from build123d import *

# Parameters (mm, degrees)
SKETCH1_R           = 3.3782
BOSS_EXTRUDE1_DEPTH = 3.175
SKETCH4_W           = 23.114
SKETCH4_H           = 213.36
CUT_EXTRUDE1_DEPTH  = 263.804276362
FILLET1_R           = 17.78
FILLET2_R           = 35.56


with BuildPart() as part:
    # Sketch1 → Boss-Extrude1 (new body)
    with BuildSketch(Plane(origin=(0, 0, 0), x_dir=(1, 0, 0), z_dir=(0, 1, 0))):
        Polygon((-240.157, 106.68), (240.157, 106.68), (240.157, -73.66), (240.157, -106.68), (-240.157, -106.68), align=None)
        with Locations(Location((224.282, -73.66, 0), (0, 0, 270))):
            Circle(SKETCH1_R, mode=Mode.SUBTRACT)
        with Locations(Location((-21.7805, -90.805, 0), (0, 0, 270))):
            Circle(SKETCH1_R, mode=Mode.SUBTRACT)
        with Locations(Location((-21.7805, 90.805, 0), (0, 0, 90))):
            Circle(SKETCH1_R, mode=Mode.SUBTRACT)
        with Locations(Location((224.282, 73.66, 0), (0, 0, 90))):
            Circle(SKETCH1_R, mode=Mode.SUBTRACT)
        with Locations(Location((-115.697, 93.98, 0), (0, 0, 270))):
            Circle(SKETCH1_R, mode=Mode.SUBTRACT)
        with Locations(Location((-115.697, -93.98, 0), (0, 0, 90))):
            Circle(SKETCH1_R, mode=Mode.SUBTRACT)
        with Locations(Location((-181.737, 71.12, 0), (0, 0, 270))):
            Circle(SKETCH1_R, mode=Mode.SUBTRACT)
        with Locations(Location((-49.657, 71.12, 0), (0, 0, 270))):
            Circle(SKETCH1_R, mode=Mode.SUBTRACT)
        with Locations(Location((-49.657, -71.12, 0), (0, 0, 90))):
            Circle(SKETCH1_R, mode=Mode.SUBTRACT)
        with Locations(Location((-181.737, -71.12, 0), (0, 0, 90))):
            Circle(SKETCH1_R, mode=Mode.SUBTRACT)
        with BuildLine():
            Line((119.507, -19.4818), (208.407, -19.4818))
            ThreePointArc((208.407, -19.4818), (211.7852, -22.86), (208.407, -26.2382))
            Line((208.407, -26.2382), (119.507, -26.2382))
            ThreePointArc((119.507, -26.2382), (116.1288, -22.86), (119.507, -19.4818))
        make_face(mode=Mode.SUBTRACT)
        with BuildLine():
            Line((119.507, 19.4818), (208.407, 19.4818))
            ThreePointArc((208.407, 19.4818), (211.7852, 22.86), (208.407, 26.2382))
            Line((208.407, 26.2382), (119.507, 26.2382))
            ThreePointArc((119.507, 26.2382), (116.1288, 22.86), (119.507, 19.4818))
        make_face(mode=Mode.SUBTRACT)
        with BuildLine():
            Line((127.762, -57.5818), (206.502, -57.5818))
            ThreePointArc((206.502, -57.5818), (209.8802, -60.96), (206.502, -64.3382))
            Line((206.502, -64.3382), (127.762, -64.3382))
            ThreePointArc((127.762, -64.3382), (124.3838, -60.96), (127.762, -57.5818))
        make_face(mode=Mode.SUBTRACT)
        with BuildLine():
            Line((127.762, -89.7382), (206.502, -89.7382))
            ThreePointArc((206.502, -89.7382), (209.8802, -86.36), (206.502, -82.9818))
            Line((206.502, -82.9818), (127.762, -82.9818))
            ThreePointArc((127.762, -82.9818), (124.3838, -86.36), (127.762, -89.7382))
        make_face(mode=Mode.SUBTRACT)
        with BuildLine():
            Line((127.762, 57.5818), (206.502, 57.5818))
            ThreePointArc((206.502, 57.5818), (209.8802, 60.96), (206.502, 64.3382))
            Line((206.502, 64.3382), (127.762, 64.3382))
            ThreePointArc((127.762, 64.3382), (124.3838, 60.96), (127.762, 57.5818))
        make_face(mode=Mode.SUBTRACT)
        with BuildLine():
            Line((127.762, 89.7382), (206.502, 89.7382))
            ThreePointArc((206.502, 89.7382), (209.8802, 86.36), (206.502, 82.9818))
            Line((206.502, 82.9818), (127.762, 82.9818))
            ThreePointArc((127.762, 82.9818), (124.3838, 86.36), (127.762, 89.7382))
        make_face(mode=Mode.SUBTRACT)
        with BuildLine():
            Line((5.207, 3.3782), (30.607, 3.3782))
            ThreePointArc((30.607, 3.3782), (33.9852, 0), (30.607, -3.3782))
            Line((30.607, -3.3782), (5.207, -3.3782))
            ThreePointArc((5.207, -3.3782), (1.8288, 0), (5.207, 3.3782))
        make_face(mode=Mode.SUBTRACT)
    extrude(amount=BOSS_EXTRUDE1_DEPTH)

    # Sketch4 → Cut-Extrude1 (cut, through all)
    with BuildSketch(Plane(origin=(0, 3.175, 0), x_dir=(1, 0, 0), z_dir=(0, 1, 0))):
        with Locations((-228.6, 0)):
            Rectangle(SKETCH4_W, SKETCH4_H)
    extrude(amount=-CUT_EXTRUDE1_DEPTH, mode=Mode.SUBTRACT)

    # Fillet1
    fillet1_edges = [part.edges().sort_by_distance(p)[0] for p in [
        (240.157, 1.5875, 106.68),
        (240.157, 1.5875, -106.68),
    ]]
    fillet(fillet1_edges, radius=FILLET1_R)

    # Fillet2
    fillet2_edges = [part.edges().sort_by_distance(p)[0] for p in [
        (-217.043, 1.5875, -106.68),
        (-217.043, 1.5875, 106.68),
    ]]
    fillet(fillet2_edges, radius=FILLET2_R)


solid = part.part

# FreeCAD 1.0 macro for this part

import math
import FreeCAD as App
import Part
import Sketcher
from FreeCAD import Vector
Q = App.Units.Quantity


def edges_at(feature, points):
    """Names of the edges that pass closest to the given points."""
    edges = feature.Shape.Edges
    near = lambda p: min(range(len(edges)), key=lambda i: edges[i].distToShape(Part.Vertex(*p))[0])
    return sorted({f"Edge{near(p) + 1}" for p in points})


def add_polygon(sketch, points):
    """Adds a closed chain of lines whose ends are joined by coincident constraints."""
    first, n = sketch.GeometryCount, len(points)
    for a, b in zip(points, points[1:] + points[:1]):
        sketch.addGeometry(Part.LineSegment(App.Vector(*a, 0), App.Vector(*b, 0)), False)
    for i in range(n):
        sketch.addConstraint(Sketcher.Constraint("Coincident", first + i, 2, first + (i + 1) % n, 1))

doc = App.newDocument("Part")
body = doc.addObject("PartDesign::Body", "Body")

sketch1 = body.newObject("Sketcher::SketchObject", "Sketch")
sketch1.AttachmentSupport = (doc.getObject("XZ_Plane"), [""])
sketch1.MapMode = "FlatFace"
add_polygon(sketch1, [(240.2, -106.7), (-240.2, -106.7), (-240.2, 106.7), (240.2, 106.7)])
sketch1.addGeometry(Part.Circle(Vector(224.3, 73.7, 0), Vector(0, 0, 1), 3.4), False)
sketch1.addGeometry(Part.ArcOfCircle(Part.Circle(Vector(127.8, 86.4, 0), Vector(0, 0, 1), 3.4), math.radians(90), math.radians(270)), False)
sketch1.addGeometry(Part.LineSegment(Vector(127.8, 83, 0), Vector(206.5, 83, 0)), False)
sketch1.addGeometry(Part.ArcOfCircle(Part.Circle(Vector(206.5, 86.4, 0), Vector(0, 0, 1), 3.4), math.radians(-90), math.radians(90)), False)
sketch1.addGeometry(Part.LineSegment(Vector(206.5, 89.7, 0), Vector(127.8, 89.7, 0)), False)
sketch1.addGeometry(Part.LineSegment(Vector(127.8, 57.6, 0), Vector(206.5, 57.6, 0)), False)
sketch1.addGeometry(Part.ArcOfCircle(Part.Circle(Vector(206.5, 61, 0), Vector(0, 0, 1), 3.4), math.radians(-90), math.radians(90)), False)
sketch1.addGeometry(Part.LineSegment(Vector(206.5, 64.3, 0), Vector(127.8, 64.3, 0)), False)
sketch1.addGeometry(Part.ArcOfCircle(Part.Circle(Vector(127.8, 61, 0), Vector(0, 0, 1), 3.4), math.radians(90), math.radians(270)), False)
sketch1.addGeometry(Part.LineSegment(Vector(119.5, 19.5, 0), Vector(208.4, 19.5, 0)), False)
sketch1.addGeometry(Part.ArcOfCircle(Part.Circle(Vector(208.4, 22.9, 0), Vector(0, 0, 1), 3.4), math.radians(-90), math.radians(90)), False)
sketch1.addGeometry(Part.LineSegment(Vector(208.4, 26.2, 0), Vector(119.5, 26.2, 0)), False)
sketch1.addGeometry(Part.ArcOfCircle(Part.Circle(Vector(119.5, 22.9, 0), Vector(0, 0, 1), 3.4), math.radians(90), math.radians(270)), False)
sketch1.addGeometry(Part.Circle(Vector(-21.8, 90.8, 0), Vector(0, 0, 1), 3.4), False)
sketch1.addGeometry(Part.Circle(Vector(-49.7, 71.1, 0), Vector(0, 0, 1), 3.4), False)
sketch1.addGeometry(Part.Circle(Vector(-115.7, 94, 0), Vector(0, 0, 1), 3.4), False)
sketch1.addGeometry(Part.Circle(Vector(-181.7, 71.1, 0), Vector(0, 0, 1), 3.4), False)
sketch1.addGeometry(Part.ArcOfCircle(Part.Circle(Vector(119.5, -22.9, 0), Vector(0, 0, 1), 3.4), math.radians(90), math.radians(270)), False)
sketch1.addGeometry(Part.LineSegment(Vector(119.5, -26.2, 0), Vector(208.4, -26.2, 0)), False)
sketch1.addGeometry(Part.ArcOfCircle(Part.Circle(Vector(208.4, -22.9, 0), Vector(0, 0, 1), 3.4), math.radians(-90), math.radians(90)), False)
sketch1.addGeometry(Part.LineSegment(Vector(208.4, -19.5, 0), Vector(119.5, -19.5, 0)), False)
sketch1.addGeometry(Part.ArcOfCircle(Part.Circle(Vector(127.8, -61, 0), Vector(0, 0, 1), 3.4), math.radians(90), math.radians(270)), False)
sketch1.addGeometry(Part.LineSegment(Vector(127.8, -64.3, 0), Vector(206.5, -64.3, 0)), False)
sketch1.addGeometry(Part.ArcOfCircle(Part.Circle(Vector(206.5, -61, 0), Vector(0, 0, 1), 3.4), math.radians(-90), math.radians(90)), False)
sketch1.addGeometry(Part.LineSegment(Vector(206.5, -57.6, 0), Vector(127.8, -57.6, 0)), False)
sketch1.addGeometry(Part.Circle(Vector(224.3, -73.7, 0), Vector(0, 0, 1), 3.4), False)
sketch1.addGeometry(Part.LineSegment(Vector(127.8, -89.7, 0), Vector(206.5, -89.7, 0)), False)
sketch1.addGeometry(Part.ArcOfCircle(Part.Circle(Vector(206.5, -86.4, 0), Vector(0, 0, 1), 3.4), math.radians(-90), math.radians(90)), False)
sketch1.addGeometry(Part.LineSegment(Vector(206.5, -83, 0), Vector(127.8, -83, 0)), False)
sketch1.addGeometry(Part.ArcOfCircle(Part.Circle(Vector(127.8, -86.4, 0), Vector(0, 0, 1), 3.4), math.radians(90), math.radians(270)), False)
sketch1.addGeometry(Part.LineSegment(Vector(5.2, -3.4, 0), Vector(30.6, -3.4, 0)), False)
sketch1.addGeometry(Part.ArcOfCircle(Part.Circle(Vector(30.6, 0, 0), Vector(0, 0, 1), 3.4), math.radians(-90), math.radians(90)), False)
sketch1.addGeometry(Part.LineSegment(Vector(30.6, 3.4, 0), Vector(5.2, 3.4, 0)), False)
sketch1.addGeometry(Part.ArcOfCircle(Part.Circle(Vector(5.2, 0, 0), Vector(0, 0, 1), 3.4), math.radians(90), math.radians(270)), False)
sketch1.addGeometry(Part.Circle(Vector(-49.7, -71.1, 0), Vector(0, 0, 1), 3.4), False)
sketch1.addGeometry(Part.Circle(Vector(-21.8, -90.8, 0), Vector(0, 0, 1), 3.4), False)
sketch1.addGeometry(Part.Circle(Vector(-181.7, -71.1, 0), Vector(0, 0, 1), 3.4), False)
sketch1.addGeometry(Part.Circle(Vector(-115.7, -94, 0), Vector(0, 0, 1), 3.4), False)
sketch1.addConstraint([
    Sketcher.Constraint("Tangent", 5, 2, 6, 1),
    Sketcher.Constraint("Tangent", 6, 2, 7, 1),
    Sketcher.Constraint("Tangent", 7, 2, 8, 1),
    Sketcher.Constraint("Tangent", 8, 2, 5, 1),
    Sketcher.Constraint("Tangent", 9, 2, 10, 1),
    Sketcher.Constraint("Tangent", 10, 2, 11, 1),
    Sketcher.Constraint("Tangent", 11, 2, 12, 1),
    Sketcher.Constraint("Tangent", 12, 2, 9, 1),
    Sketcher.Constraint("Tangent", 13, 2, 14, 1),
    Sketcher.Constraint("Tangent", 14, 2, 15, 1),
    Sketcher.Constraint("Tangent", 15, 2, 16, 1),
    Sketcher.Constraint("Tangent", 16, 2, 13, 1),
    Sketcher.Constraint("Tangent", 21, 2, 22, 1),
    Sketcher.Constraint("Tangent", 22, 2, 23, 1),
    Sketcher.Constraint("Tangent", 23, 2, 24, 1),
    Sketcher.Constraint("Tangent", 24, 2, 21, 1),
    Sketcher.Constraint("Tangent", 25, 2, 26, 1),
    Sketcher.Constraint("Tangent", 26, 2, 27, 1),
    Sketcher.Constraint("Tangent", 27, 2, 28, 1),
    Sketcher.Constraint("Tangent", 28, 2, 25, 1),
    Sketcher.Constraint("Tangent", 30, 2, 31, 1),
    Sketcher.Constraint("Tangent", 31, 2, 32, 1),
    Sketcher.Constraint("Tangent", 32, 2, 33, 1),
    Sketcher.Constraint("Tangent", 33, 2, 30, 1),
    Sketcher.Constraint("Tangent", 34, 2, 35, 1),
    Sketcher.Constraint("Tangent", 35, 2, 36, 1),
    Sketcher.Constraint("Tangent", 36, 2, 37, 1),
    Sketcher.Constraint("Tangent", 37, 2, 34, 1),
    Sketcher.Constraint("Horizontal", 0),
    Sketcher.Constraint("Vertical", 1),
    Sketcher.Constraint("Horizontal", 2),
    Sketcher.Constraint("Vertical", 3),
    Sketcher.Constraint("Horizontal", 6),
    Sketcher.Constraint("Horizontal", 8),
    Sketcher.Constraint("Horizontal", 9),
    Sketcher.Constraint("Horizontal", 11),
    Sketcher.Constraint("Horizontal", 13),
    Sketcher.Constraint("Horizontal", 15),
    Sketcher.Constraint("Horizontal", 22),
    Sketcher.Constraint("Horizontal", 24),
    Sketcher.Constraint("Horizontal", 26),
    Sketcher.Constraint("Horizontal", 28),
    Sketcher.Constraint("Horizontal", 30),
    Sketcher.Constraint("Horizontal", 32),
    Sketcher.Constraint("Horizontal", 34),
    Sketcher.Constraint("Horizontal", 36),
    Sketcher.Constraint("Equal", 4, 5),
    Sketcher.Constraint("Equal", 7, 10),
    Sketcher.Constraint("Equal", 12, 14),
    Sketcher.Constraint("Equal", 16, 17),
    Sketcher.Constraint("Equal", 17, 18),
    Sketcher.Constraint("Equal", 18, 19),
    Sketcher.Constraint("Equal", 19, 20),
    Sketcher.Constraint("Equal", 20, 21),
    Sketcher.Constraint("Equal", 23, 25),
    Sketcher.Constraint("Equal", 27, 29),
    Sketcher.Constraint("Equal", 29, 31),
    Sketcher.Constraint("Equal", 33, 35),
    Sketcher.Constraint("Equal", 37, 38),
    Sketcher.Constraint("Equal", 38, 39),
    Sketcher.Constraint("Equal", 39, 40),
    Sketcher.Constraint("Equal", 40, 41),
    Sketcher.Constraint("Symmetric", 0, 2, 2, 2, -1, 1),
    Sketcher.Constraint("Symmetric", 16, 3, 21, 3, -1),
    Sketcher.Constraint("Symmetric", 12, 3, 25, 3, -1),
    Sketcher.Constraint("Symmetric", 4, 3, 29, 3, -1),
    Sketcher.Constraint("Symmetric", 7, 3, 31, 3, -1),
    Sketcher.Constraint("Symmetric", 18, 3, 38, 3, -1),
    Sketcher.Constraint("Symmetric", 17, 3, 39, 3, -1),
    Sketcher.Constraint("Symmetric", 20, 3, 40, 3, -1),
    Sketcher.Constraint("Symmetric", 19, 3, 41, 3, -1),
    Sketcher.Constraint("PointOnObject", 35, 3, -1),
    Sketcher.Constraint("Horizontal", 18, 3, 20, 3),
    Sketcher.Constraint("Vertical", 7, 3, 10, 3),
    Sketcher.Constraint("Vertical", 5, 3, 12, 3),
    Sketcher.Constraint("Vertical", 14, 3, 23, 3),
    Sketcher.Constraint("Vertical", 10, 3, 27, 3),
    Sketcher.Constraint("Vertical", 25, 3, 33, 3),
    Sketcher.Constraint("DistanceX", 34, 1, 34, 2, Q("1 in")),
    Sketcher.Constraint("Diameter", 4, Q("0.266 in")),
    Sketcher.Constraint("DistanceX", 6, 1, 6, 2, Q("3.1 in")),
    Sketcher.Constraint("DistanceX", 13, 1, 13, 2, Q("3.5 in")),
    Sketcher.Constraint("DistanceY", 1, 1, 1, 2, Q("8.4 in")),
    Sketcher.Constraint("DistanceY", 10, 3, 7, 3, Q("1 in")),
    Sketcher.Constraint("DistanceY", 14, 3, 4, 3, Q("2 in")),
    Sketcher.Constraint("DistanceY", 0, 2, 20, 3, Q("7 in")),
    Sketcher.Constraint("DistanceX", 0, 2, 0, 1, Q("18.91 in")),
    Sketcher.Constraint("DistanceY", -1, 1, 4, 3, Q("2.9 in")),
    Sketcher.Constraint("DistanceY", -1, 1, 5, 3, Q("3.4 in")),
    Sketcher.Constraint("DistanceY", -1, 1, 19, 3, Q("3.7 in")),
    Sketcher.Constraint("DistanceX", 5, 3, 4, 3, Q("3.8 in")),
    Sketcher.Constraint("DistanceX", 19, 3, 18, 3, Q("2.6 in")),
    Sketcher.Constraint("DistanceX", 20, 3, 19, 3, Q("2.6 in")),
    Sketcher.Constraint("DistanceX", 35, 3, 16, 3, Q("3.5 in")),
    Sketcher.Constraint("DistanceX", 0, 2, 40, 3, Q("2.3 in")),
    Sketcher.Constraint("DistanceX", -1, 1, 4, 3, Q("8.83 in")),
    Sketcher.Constraint("DistanceX", 18, 3, 16, 3, Q("6.66 in")),
    Sketcher.Constraint("DistanceY", -1, 1, 17, 3, Q("3.575 in")),
    Sketcher.Constraint("DistanceX", 17, 3, 16, 3, Q("5.5625 in")),
])
pad1 = body.newObject("PartDesign::Pad", "Pad")
pad1.Profile = sketch1
pad1.Length = Q("0.125 in")
pad1.Reversed = True

sketch2 = body.newObject("Sketcher::SketchObject", "Sketch001")
sketch2.AttachmentSupport = (doc.getObject("XZ_Plane"), [""])
sketch2.MapMode = "FlatFace"
sketch2.AttachmentOffset = App.Placement(Vector(0, 0, -0.125 * 25.4), App.Rotation())
add_polygon(sketch2, [(-240, -107), (-240, 107), (-217, 107), (-217, -107)])
sketch2.addConstraint([
    Sketcher.Constraint("Vertical", 0),
    Sketcher.Constraint("Horizontal", 1),
    Sketcher.Constraint("Vertical", 2),
    Sketcher.Constraint("Horizontal", 3),
    Sketcher.Constraint("DistanceY", 0, 1, 0, 2, Q("8.4 in")),
    Sketcher.Constraint("DistanceX", 1, 1, 1, 2, Q("0.91 in")),
    Sketcher.Constraint("DistanceY", -1, 1, 0, 2, Q("4.2 in")),
    Sketcher.Constraint("DistanceX", 0, 2, -1, 1, Q("9.455 in")),
])
pocket1 = body.newObject("PartDesign::Pocket", "Pocket")
pocket1.Profile = sketch2
pocket1.Type = "ThroughAll"
pocket1.Reversed = True
doc.recompute()

fillet = body.newObject("PartDesign::Fillet", "Fillet")
fillet.Base = (pocket1, edges_at(pocket1, [(240.157, 1.587, 106.68), (240.157, 1.587, -106.68)]))
fillet.Radius = Q("0.7 in")
doc.recompute()

fillet2 = body.newObject("PartDesign::Fillet", "Fillet001")
fillet2.Base = (fillet, edges_at(fillet, [(-217.043, 1.587, -106.68), (-217.043, 1.587, 106.68)]))
fillet2.Radius = Q("1.4 in")

doc.recompute()
